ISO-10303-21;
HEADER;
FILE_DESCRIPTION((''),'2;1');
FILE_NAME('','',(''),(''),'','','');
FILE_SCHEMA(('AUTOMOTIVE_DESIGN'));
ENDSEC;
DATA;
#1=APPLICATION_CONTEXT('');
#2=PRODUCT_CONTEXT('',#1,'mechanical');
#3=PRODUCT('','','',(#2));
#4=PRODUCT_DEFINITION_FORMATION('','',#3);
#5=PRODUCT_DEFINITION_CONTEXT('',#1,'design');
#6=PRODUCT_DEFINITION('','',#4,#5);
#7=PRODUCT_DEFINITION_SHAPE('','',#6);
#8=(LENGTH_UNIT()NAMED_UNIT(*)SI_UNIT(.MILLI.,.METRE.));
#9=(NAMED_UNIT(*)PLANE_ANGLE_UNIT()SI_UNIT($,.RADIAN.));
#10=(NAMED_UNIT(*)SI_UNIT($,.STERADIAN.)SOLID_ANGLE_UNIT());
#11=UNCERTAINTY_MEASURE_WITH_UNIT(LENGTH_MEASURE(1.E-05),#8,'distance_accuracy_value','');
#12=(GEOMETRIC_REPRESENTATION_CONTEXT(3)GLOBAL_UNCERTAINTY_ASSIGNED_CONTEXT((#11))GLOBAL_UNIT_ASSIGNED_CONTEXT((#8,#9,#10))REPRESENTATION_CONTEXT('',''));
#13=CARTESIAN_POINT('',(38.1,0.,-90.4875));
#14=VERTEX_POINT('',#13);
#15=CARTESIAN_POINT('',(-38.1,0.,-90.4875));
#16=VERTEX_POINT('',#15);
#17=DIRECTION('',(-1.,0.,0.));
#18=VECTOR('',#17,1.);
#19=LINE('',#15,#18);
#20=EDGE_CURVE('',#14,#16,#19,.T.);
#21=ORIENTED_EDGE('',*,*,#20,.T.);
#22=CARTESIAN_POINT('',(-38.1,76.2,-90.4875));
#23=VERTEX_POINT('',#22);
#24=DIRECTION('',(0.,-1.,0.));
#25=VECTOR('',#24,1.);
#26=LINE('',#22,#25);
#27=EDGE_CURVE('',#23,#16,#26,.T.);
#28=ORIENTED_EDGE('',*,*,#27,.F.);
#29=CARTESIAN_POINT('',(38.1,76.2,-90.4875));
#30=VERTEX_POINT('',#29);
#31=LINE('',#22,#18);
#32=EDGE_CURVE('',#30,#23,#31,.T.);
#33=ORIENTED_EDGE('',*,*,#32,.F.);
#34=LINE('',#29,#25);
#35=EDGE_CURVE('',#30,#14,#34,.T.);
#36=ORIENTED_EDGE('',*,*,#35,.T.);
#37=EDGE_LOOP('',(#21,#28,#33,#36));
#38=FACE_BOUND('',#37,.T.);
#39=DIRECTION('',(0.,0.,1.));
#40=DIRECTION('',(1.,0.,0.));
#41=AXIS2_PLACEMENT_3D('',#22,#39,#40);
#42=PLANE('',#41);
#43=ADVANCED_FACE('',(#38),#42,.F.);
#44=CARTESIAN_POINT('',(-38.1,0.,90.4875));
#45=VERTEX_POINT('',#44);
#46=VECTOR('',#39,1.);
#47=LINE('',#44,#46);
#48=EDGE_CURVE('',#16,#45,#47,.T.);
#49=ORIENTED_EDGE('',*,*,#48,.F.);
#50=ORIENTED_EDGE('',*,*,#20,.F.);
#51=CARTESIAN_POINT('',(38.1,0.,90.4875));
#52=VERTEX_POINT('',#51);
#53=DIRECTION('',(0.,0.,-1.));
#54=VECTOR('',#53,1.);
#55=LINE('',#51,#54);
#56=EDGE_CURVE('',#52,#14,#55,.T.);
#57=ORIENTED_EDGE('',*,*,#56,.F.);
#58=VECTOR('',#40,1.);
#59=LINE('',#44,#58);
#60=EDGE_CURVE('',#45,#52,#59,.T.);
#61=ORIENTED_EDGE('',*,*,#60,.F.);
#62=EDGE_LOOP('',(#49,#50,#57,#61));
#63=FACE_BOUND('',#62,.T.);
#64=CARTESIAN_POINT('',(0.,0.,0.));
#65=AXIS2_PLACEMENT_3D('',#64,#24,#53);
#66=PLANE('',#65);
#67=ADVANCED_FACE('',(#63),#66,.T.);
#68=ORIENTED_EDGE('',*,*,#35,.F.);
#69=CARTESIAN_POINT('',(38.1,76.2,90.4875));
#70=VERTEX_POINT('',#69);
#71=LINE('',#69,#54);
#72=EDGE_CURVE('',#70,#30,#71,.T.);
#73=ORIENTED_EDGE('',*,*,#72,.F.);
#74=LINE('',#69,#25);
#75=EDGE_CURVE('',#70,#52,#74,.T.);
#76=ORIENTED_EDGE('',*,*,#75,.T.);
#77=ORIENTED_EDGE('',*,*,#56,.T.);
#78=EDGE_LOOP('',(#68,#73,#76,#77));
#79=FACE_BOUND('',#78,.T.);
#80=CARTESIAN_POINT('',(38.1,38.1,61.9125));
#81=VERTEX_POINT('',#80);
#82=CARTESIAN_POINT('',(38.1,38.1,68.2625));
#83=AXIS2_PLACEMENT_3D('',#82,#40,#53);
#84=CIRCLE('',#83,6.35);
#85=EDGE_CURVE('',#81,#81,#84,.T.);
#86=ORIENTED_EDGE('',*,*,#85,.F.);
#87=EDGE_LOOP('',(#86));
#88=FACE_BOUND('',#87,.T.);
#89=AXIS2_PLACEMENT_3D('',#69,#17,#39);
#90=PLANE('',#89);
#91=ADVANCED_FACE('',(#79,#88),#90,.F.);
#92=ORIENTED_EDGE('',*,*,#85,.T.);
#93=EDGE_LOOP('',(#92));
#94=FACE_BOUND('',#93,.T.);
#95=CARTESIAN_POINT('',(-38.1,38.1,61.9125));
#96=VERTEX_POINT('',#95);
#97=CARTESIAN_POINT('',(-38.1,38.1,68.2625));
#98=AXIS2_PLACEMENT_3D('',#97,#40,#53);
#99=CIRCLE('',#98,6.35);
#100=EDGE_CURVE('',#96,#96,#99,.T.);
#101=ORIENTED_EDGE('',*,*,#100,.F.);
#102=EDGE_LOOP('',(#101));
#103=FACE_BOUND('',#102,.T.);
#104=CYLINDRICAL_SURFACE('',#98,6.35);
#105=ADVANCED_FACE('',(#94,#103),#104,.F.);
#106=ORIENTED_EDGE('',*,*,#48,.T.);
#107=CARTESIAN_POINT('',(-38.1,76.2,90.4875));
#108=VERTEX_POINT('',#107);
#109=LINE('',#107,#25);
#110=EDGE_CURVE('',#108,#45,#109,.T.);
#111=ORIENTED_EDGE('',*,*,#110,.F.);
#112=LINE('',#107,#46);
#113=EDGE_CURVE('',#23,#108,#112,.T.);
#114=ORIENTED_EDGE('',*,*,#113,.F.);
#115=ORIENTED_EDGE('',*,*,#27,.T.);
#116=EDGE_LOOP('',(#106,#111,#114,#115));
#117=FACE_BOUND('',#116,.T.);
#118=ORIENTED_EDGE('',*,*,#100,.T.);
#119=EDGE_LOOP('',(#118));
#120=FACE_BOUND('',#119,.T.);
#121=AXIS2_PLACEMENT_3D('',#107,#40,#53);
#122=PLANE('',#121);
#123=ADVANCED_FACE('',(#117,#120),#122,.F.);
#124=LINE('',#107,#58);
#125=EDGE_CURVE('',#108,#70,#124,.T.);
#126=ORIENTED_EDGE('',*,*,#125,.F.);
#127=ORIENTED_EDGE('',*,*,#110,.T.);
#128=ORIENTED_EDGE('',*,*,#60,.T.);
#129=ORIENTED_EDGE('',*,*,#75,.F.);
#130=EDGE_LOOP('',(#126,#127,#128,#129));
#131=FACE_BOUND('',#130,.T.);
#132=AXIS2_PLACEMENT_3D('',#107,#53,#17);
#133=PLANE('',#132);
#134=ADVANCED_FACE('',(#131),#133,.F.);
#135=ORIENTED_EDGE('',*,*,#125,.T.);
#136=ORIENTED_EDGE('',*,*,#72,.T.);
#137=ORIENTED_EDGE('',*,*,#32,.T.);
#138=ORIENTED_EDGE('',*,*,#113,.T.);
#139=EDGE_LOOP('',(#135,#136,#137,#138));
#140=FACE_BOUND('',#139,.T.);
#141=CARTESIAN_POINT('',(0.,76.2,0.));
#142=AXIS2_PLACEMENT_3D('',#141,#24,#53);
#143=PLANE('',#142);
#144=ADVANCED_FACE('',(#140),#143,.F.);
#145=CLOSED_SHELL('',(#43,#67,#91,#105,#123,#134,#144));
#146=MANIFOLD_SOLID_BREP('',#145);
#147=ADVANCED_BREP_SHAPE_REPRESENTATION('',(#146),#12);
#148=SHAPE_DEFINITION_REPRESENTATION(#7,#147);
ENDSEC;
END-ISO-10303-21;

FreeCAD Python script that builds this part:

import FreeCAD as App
import Part
import Sketcher

V = App.Vector
Q = App.Units.Quantity

doc = App.newDocument("Part")
body = doc.addObject("PartDesign::Body", "Body")

# Sketch on XZ plane
sketch1 = body.newObject("Sketcher::SketchObject", "Sketch")
sketch1.AttachmentSupport = (doc.getObject("XZ_Plane"), [""])
sketch1.MapMode = "FlatFace"
sketch1.addGeometry(Part.LineSegment(V(-38.1, -90.4875, 0), V(-38.1, 90.4875, 0)), False)
sketch1.addGeometry(Part.LineSegment(V(-38.1, 90.4875, 0), V(38.1, 90.4875, 0)), False)
sketch1.addGeometry(Part.LineSegment(V(38.1, 90.4875, 0), V(38.1, -90.4875, 0)), False)
sketch1.addGeometry(Part.LineSegment(V(38.1, -90.4875, 0), V(-38.1, -90.4875, 0)), False)
sketch1.addConstraint(Sketcher.Constraint("Coincident", 0, 2, 1, 1))
sketch1.addConstraint(Sketcher.Constraint("Coincident", 1, 2, 2, 1))
sketch1.addConstraint(Sketcher.Constraint("Coincident", 2, 2, 3, 1))
sketch1.addConstraint(Sketcher.Constraint("Coincident", 3, 2, 0, 1))
sketch1.addConstraint(Sketcher.Constraint("Vertical", 0))
sketch1.addConstraint(Sketcher.Constraint("Horizontal", 1))
sketch1.addConstraint(Sketcher.Constraint("Vertical", 2))
sketch1.addConstraint(Sketcher.Constraint("Horizontal", 3))
sketch1.addConstraint(Sketcher.Constraint("Symmetric", 0, 2, 2, 2, -1, 1))
sketch1.addConstraint(Sketcher.Constraint("DistanceX", 1, 1, 1, 2, Q("3 in")))
sketch1.addConstraint(Sketcher.Constraint("DistanceY", 0, 1, 0, 2, Q("7.125 in")))
pad1 = body.newObject("PartDesign::Pad", "Pad")
pad1.Profile = sketch1
pad1.Length = Q("3 in")
pad1.Reversed = True

# Sketch on YZ plane
sketch2 = body.newObject("Sketcher::SketchObject", "Sketch001")
sketch2.AttachmentSupport = (doc.getObject("YZ_Plane"), [""])
sketch2.MapMode = "FlatFace"
sketch2.AttachmentOffset = App.Placement(V(0, 0, 1.5 * 25.4), App.Rotation())
sketch2.addGeometry(Part.Circle(V(38.1, 68.2625, 0), V(0, 0, 1), 6.35), False)
sketch2.addConstraint(Sketcher.Constraint("Diameter", 0, Q("0.5 in")))
sketch2.addConstraint(Sketcher.Constraint("DistanceX", -1, 1, 0, 3, Q("1.5 in")))
sketch2.addConstraint(Sketcher.Constraint("DistanceY", -1, 1, 0, 3, Q("2.6875 in")))
pocket1 = body.newObject("PartDesign::Pocket", "Pocket")
pocket1.Profile = sketch2
pocket1.Length = Q("3 in")

doc.recompute()
